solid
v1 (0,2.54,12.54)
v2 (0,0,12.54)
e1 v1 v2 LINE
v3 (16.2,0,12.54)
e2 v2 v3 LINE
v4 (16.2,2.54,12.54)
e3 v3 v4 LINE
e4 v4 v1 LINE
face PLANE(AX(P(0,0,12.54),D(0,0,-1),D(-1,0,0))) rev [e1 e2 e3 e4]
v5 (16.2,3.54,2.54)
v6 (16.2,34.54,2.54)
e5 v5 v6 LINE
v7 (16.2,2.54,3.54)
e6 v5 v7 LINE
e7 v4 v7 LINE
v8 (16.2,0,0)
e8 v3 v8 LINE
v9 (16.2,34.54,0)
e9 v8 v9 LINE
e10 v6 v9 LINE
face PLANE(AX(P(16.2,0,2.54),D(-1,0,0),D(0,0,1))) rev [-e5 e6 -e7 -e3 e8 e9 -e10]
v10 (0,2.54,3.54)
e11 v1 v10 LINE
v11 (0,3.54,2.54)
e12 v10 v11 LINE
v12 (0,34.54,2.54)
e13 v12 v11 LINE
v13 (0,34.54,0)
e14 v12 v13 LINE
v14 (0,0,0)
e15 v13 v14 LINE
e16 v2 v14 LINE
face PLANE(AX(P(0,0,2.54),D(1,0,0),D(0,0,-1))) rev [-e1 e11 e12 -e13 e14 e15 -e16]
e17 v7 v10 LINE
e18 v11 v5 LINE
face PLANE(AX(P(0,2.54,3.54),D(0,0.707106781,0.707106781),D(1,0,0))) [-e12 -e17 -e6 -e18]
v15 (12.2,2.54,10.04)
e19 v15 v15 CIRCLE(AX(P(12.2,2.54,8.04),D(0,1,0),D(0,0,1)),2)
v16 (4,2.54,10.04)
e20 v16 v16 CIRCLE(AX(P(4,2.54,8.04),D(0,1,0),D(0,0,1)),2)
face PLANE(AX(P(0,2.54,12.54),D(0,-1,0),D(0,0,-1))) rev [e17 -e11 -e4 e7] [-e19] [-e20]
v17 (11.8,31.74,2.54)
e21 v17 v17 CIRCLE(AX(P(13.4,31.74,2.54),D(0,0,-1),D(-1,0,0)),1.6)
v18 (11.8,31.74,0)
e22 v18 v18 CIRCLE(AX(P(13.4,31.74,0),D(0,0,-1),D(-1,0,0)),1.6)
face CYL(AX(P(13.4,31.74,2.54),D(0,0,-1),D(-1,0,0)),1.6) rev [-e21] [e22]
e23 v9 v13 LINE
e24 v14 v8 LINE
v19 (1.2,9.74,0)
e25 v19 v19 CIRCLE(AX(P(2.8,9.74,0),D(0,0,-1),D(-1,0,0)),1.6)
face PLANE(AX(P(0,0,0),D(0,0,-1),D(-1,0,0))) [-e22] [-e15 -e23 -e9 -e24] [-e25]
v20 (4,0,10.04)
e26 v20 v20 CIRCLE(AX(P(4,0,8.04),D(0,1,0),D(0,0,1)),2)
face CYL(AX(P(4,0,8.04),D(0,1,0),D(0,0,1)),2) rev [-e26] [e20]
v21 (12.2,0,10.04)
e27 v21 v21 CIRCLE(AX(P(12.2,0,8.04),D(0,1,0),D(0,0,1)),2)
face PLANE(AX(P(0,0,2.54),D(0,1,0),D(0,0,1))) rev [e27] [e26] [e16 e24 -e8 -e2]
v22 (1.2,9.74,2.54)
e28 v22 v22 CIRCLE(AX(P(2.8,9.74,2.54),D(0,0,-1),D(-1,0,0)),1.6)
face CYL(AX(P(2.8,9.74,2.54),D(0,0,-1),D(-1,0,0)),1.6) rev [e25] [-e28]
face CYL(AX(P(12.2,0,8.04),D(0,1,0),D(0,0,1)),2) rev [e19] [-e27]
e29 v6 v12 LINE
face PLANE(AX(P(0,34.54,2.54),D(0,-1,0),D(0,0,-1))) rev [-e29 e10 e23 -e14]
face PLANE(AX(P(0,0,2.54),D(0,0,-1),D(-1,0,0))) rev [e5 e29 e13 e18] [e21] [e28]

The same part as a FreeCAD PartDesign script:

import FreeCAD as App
import Part
import Sketcher

V = App.Vector


def edges_at(feature, points):
    """Names of the edges that pass closest to the given points."""
    edges = feature.Shape.Edges
    near = lambda p: min(range(len(edges)), key=lambda i: edges[i].distToShape(Part.Vertex(*p))[0])
    return sorted({f"Edge{near(p) + 1}" for p in points})


def add_polygon(sketch, points):
    """Adds a closed chain of lines whose ends are joined by coincident constraints."""
    first, n = sketch.GeometryCount, len(points)
    for a, b in zip(points, points[1:] + points[:1]):
        sketch.addGeometry(Part.LineSegment(App.Vector(*a, 0), App.Vector(*b, 0)), False)
    for i in range(n):
        sketch.addConstraint(Sketcher.Constraint("Coincident", first + i, 2, first + (i + 1) % n, 1))

doc = App.newDocument("Part")
body = doc.addObject("PartDesign::Body", "Body")

# Sketch on XY plane
sketch1 = body.newObject("Sketcher::SketchObject", "Sketch")
sketch1.AttachmentSupport = (doc.getObject("XY_Plane"), [""])
sketch1.MapMode = "FlatFace"
add_polygon(sketch1, [(0, 34.54), (0, 0), (16.2, 0), (16.2, 34.54)])  # lines 0-3
sketch1.addConstraint(Sketcher.Constraint("Vertical", 0))
sketch1.addConstraint(Sketcher.Constraint("Horizontal", 1))
sketch1.addConstraint(Sketcher.Constraint("Vertical", 2))
sketch1.addConstraint(Sketcher.Constraint("Horizontal", 3))
sketch1.addConstraint(Sketcher.Constraint("Coincident", 0, 2, -1, 1))
sketch1.addConstraint(Sketcher.Constraint("DistanceX", 1, 1, 1, 2, 16.2))
sketch1.addConstraint(Sketcher.Constraint("DistanceY", 0, 2, 0, 1, 34.54))
pad1 = body.newObject("PartDesign::Pad", "Pad")
pad1.Profile = sketch1
pad1.Length = 2.54

# Sketch on XY plane
sketch2 = body.newObject("Sketcher::SketchObject", "Sketch001")
sketch2.AttachmentSupport = (doc.getObject("XY_Plane"), [""])
sketch2.MapMode = "FlatFace"
sketch2.AttachmentOffset = App.Placement(V(0, 0, 2.54), App.Rotation())
add_polygon(sketch2, [(0, 2.54), (0, 0), (16.2, 0), (16.2, 2.54)])  # lines 0-3
sketch2.addConstraint(Sketcher.Constraint("Vertical", 0))
sketch2.addConstraint(Sketcher.Constraint("Horizontal", 1))
sketch2.addConstraint(Sketcher.Constraint("Vertical", 2))
sketch2.addConstraint(Sketcher.Constraint("Horizontal", 3))
sketch2.addConstraint(Sketcher.Constraint("Coincident", 0, 2, -1, 1))
sketch2.addConstraint(Sketcher.Constraint("DistanceX", 1, 1, 1, 2, 16.2))
sketch2.addConstraint(Sketcher.Constraint("DistanceY", 0, 2, 0, 1, 2.54))
pad2 = body.newObject("PartDesign::Pad", "Pad001")
pad2.Profile = sketch2
pad2.Length = 10
doc.recompute()

chamfer = body.newObject("PartDesign::Chamfer", "Chamfer")
chamfer.Base = (pad2, edges_at(pad2, [(8.1, 2.54, 2.54)]))
chamfer.Size = 1

# Sketch on XY plane
sketch3 = body.newObject("Sketcher::SketchObject", "Sketch002")
sketch3.AttachmentSupport = (doc.getObject("XY_Plane"), [""])
sketch3.MapMode = "FlatFace"
sketch3.addGeometry(Part.Circle(V(13.4, 31.74, 0), V(0, 0, 1), 1.6), False)
sketch3.addGeometry(Part.Circle(V(2.8, 9.74, 0), V(0, 0, 1), 1.6), False)
sketch3.addConstraint(Sketcher.Constraint("Equal", 0, 1))
sketch3.addConstraint(Sketcher.Constraint("Diameter", 0, 3.2))
sketch3.addConstraint(Sketcher.Constraint("DistanceY", 1, 3, 0, 3, 22.0))
sketch3.addConstraint(Sketcher.Constraint("DistanceX", -1, 1, 0, 3, 13.4))
sketch3.addConstraint(Sketcher.Constraint("DistanceX", -1, 1, 1, 3, 2.8))
sketch3.addConstraint(Sketcher.Constraint("DistanceY", -1, 1, 0, 3, 31.74))
pocket1 = body.newObject("PartDesign::Pocket", "Pocket")
pocket1.Profile = sketch3
pocket1.Length = 2.54
pocket1.Reversed = True

# Sketch on XZ plane
sketch4 = body.newObject("Sketcher::SketchObject", "Sketch003")
sketch4.AttachmentSupport = (doc.getObject("XZ_Plane"), [""])
sketch4.MapMode = "FlatFace"
sketch4.AttachmentOffset = App.Placement(V(0, 0, -2.54), App.Rotation())
sketch4.addGeometry(Part.Circle(V(12.2, 8.04, 0), V(0, 0, 1), 2), False)
sketch4.addGeometry(Part.Circle(V(4, 8.04, 0), V(0, 0, 1), 2), False)
sketch4.addConstraint(Sketcher.Constraint("Equal", 0, 1))
sketch4.addConstraint(Sketcher.Constraint("Horizontal", 0, 3, 1, 3))
sketch4.addConstraint(Sketcher.Constraint("Diameter", 0, 4.0))
sketch4.addConstraint(Sketcher.Constraint("DistanceX", -1, 1, 1, 3, 4.0))
sketch4.addConstraint(Sketcher.Constraint("DistanceX", -1, 1, 0, 3, 12.2))
sketch4.addConstraint(Sketcher.Constraint("DistanceY", -1, 1, 0, 3, 8.04))
pocket2 = body.newObject("PartDesign::Pocket", "Pocket001")
pocket2.Profile = sketch4
pocket2.Type = "ThroughAll"
pocket2.Reversed = True

doc.recompute()
